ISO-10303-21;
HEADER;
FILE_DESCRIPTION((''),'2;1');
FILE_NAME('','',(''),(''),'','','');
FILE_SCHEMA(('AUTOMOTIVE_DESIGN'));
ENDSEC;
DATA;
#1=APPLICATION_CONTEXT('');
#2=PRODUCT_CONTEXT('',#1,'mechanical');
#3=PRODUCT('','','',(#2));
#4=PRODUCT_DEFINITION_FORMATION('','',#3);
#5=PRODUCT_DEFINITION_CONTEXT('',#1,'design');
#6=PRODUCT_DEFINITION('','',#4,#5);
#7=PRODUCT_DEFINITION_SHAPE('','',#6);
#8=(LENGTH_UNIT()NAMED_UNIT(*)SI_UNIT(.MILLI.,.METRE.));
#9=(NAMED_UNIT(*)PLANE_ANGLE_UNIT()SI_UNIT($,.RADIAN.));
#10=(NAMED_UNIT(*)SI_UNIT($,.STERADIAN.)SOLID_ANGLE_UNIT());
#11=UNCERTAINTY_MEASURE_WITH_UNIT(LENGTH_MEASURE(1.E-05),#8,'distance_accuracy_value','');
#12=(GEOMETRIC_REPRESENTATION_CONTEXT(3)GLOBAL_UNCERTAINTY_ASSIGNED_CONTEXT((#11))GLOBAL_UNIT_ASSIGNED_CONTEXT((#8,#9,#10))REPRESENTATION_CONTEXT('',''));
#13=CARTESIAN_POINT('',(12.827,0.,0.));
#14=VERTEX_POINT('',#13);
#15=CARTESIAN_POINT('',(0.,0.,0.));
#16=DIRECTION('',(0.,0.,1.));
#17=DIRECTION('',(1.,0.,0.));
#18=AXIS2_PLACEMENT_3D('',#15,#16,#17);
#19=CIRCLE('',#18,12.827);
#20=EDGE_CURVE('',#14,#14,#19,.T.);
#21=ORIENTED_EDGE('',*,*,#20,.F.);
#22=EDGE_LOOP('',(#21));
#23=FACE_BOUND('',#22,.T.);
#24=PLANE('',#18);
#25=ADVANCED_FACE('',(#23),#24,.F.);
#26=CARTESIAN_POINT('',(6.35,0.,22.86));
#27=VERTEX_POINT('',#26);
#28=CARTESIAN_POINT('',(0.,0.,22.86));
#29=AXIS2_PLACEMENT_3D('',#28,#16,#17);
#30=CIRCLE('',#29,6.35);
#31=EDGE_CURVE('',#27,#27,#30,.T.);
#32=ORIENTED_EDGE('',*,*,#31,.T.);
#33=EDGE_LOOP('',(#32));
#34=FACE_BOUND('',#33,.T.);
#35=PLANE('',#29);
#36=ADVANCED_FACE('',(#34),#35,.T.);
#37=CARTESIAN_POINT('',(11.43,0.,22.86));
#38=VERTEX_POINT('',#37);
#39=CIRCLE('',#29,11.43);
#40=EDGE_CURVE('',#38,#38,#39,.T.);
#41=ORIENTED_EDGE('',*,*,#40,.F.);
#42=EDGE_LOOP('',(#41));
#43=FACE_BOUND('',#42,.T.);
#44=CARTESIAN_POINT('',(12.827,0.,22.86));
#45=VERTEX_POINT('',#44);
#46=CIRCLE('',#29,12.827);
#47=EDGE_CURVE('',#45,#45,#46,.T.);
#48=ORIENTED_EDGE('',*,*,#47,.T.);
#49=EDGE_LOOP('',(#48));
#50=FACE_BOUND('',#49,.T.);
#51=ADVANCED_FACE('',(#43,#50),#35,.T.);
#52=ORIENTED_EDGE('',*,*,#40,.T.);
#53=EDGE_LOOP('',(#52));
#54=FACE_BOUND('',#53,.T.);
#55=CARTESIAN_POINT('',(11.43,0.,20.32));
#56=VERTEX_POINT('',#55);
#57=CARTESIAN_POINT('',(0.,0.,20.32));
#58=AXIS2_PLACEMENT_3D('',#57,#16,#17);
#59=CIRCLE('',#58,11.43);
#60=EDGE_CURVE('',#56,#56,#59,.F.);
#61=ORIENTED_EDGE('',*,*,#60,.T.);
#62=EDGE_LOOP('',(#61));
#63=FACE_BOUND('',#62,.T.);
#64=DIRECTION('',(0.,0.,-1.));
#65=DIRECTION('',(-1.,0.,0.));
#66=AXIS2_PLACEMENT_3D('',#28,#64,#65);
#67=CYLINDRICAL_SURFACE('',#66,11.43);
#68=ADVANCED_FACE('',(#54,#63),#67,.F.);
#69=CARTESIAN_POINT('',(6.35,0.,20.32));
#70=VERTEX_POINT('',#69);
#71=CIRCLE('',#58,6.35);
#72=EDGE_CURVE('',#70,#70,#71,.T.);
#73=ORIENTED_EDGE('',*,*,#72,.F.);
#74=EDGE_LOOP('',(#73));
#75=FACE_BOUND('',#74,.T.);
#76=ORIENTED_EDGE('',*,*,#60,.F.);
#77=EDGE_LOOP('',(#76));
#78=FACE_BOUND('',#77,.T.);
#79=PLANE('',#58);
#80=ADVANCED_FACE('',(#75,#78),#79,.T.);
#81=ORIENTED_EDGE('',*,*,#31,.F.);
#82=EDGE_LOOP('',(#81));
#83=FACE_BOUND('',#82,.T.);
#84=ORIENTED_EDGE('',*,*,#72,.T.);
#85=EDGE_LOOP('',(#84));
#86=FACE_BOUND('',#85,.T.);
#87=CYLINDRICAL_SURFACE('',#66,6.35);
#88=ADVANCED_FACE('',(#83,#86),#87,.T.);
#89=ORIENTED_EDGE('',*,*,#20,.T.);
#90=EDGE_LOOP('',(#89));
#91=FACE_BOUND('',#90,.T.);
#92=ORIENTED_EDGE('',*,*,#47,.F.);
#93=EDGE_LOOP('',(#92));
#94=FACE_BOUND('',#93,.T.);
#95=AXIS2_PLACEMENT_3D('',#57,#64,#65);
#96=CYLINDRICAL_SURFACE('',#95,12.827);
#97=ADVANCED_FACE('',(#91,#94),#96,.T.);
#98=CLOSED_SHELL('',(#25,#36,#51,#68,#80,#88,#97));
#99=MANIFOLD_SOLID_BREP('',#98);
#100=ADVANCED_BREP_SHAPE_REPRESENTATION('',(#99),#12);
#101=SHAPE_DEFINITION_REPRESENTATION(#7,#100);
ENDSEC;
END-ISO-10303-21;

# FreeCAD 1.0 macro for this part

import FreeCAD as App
import Part
import Sketcher
Q = App.Units.Quantity

doc = App.newDocument("Part")
body = doc.addObject("PartDesign::Body", "Body")

sketch1 = body.newObject("Sketcher::SketchObject", "Sketch")
sketch1.AttachmentSupport = (doc.getObject("XY_Plane"), [""])
sketch1.MapMode = "FlatFace"
sketch1.addGeometry(Part.Circle(App.Vector(0, 0, 0), App.Vector(0, 0, 1), 13), False)
sketch1.addConstraint([
    Sketcher.Constraint("Coincident", 0, 3, -1, 1),
    Sketcher.Constraint("Diameter", 0, Q("1.01 in")),
])
pad1 = body.newObject("PartDesign::Pad", "Pad")
pad1.Profile = sketch1
pad1.Length = Q("0.8 in")

sketch2 = body.newObject("Sketcher::SketchObject", "Sketch001")
sketch2.AttachmentSupport = (doc.getObject("XY_Plane"), [""])
sketch2.MapMode = "FlatFace"
sketch2.AttachmentOffset = App.Placement(App.Vector(0, 0, 0.8 * 25.4), App.Rotation())
sketch2.addGeometry([
    Part.Circle(App.Vector(0, 0, 0), App.Vector(0, 0, 1), 13),
    Part.Circle(App.Vector(0, 0, 0), App.Vector(0, 0, 1), 11),
    Part.Circle(App.Vector(0, 0, 0), App.Vector(0, 0, 1), 6),
], False)
sketch2.addConstraint([
    Sketcher.Constraint("Coincident", 0, 3, -1, 1),
    Sketcher.Constraint("Coincident", 1, 3, -1, 1),
    Sketcher.Constraint("Coincident", 2, 3, -1, 1),
    Sketcher.Constraint("Diameter", 1, Q("0.9 in")),
    Sketcher.Constraint("Diameter", 2, Q("0.5 in")),
    Sketcher.Constraint("Diameter", 0, Q("1.01 in")),
])
pad2 = body.newObject("PartDesign::Pad", "Pad001")
pad2.Profile = sketch2
pad2.Length = Q("0.1 in")

doc.recompute()
